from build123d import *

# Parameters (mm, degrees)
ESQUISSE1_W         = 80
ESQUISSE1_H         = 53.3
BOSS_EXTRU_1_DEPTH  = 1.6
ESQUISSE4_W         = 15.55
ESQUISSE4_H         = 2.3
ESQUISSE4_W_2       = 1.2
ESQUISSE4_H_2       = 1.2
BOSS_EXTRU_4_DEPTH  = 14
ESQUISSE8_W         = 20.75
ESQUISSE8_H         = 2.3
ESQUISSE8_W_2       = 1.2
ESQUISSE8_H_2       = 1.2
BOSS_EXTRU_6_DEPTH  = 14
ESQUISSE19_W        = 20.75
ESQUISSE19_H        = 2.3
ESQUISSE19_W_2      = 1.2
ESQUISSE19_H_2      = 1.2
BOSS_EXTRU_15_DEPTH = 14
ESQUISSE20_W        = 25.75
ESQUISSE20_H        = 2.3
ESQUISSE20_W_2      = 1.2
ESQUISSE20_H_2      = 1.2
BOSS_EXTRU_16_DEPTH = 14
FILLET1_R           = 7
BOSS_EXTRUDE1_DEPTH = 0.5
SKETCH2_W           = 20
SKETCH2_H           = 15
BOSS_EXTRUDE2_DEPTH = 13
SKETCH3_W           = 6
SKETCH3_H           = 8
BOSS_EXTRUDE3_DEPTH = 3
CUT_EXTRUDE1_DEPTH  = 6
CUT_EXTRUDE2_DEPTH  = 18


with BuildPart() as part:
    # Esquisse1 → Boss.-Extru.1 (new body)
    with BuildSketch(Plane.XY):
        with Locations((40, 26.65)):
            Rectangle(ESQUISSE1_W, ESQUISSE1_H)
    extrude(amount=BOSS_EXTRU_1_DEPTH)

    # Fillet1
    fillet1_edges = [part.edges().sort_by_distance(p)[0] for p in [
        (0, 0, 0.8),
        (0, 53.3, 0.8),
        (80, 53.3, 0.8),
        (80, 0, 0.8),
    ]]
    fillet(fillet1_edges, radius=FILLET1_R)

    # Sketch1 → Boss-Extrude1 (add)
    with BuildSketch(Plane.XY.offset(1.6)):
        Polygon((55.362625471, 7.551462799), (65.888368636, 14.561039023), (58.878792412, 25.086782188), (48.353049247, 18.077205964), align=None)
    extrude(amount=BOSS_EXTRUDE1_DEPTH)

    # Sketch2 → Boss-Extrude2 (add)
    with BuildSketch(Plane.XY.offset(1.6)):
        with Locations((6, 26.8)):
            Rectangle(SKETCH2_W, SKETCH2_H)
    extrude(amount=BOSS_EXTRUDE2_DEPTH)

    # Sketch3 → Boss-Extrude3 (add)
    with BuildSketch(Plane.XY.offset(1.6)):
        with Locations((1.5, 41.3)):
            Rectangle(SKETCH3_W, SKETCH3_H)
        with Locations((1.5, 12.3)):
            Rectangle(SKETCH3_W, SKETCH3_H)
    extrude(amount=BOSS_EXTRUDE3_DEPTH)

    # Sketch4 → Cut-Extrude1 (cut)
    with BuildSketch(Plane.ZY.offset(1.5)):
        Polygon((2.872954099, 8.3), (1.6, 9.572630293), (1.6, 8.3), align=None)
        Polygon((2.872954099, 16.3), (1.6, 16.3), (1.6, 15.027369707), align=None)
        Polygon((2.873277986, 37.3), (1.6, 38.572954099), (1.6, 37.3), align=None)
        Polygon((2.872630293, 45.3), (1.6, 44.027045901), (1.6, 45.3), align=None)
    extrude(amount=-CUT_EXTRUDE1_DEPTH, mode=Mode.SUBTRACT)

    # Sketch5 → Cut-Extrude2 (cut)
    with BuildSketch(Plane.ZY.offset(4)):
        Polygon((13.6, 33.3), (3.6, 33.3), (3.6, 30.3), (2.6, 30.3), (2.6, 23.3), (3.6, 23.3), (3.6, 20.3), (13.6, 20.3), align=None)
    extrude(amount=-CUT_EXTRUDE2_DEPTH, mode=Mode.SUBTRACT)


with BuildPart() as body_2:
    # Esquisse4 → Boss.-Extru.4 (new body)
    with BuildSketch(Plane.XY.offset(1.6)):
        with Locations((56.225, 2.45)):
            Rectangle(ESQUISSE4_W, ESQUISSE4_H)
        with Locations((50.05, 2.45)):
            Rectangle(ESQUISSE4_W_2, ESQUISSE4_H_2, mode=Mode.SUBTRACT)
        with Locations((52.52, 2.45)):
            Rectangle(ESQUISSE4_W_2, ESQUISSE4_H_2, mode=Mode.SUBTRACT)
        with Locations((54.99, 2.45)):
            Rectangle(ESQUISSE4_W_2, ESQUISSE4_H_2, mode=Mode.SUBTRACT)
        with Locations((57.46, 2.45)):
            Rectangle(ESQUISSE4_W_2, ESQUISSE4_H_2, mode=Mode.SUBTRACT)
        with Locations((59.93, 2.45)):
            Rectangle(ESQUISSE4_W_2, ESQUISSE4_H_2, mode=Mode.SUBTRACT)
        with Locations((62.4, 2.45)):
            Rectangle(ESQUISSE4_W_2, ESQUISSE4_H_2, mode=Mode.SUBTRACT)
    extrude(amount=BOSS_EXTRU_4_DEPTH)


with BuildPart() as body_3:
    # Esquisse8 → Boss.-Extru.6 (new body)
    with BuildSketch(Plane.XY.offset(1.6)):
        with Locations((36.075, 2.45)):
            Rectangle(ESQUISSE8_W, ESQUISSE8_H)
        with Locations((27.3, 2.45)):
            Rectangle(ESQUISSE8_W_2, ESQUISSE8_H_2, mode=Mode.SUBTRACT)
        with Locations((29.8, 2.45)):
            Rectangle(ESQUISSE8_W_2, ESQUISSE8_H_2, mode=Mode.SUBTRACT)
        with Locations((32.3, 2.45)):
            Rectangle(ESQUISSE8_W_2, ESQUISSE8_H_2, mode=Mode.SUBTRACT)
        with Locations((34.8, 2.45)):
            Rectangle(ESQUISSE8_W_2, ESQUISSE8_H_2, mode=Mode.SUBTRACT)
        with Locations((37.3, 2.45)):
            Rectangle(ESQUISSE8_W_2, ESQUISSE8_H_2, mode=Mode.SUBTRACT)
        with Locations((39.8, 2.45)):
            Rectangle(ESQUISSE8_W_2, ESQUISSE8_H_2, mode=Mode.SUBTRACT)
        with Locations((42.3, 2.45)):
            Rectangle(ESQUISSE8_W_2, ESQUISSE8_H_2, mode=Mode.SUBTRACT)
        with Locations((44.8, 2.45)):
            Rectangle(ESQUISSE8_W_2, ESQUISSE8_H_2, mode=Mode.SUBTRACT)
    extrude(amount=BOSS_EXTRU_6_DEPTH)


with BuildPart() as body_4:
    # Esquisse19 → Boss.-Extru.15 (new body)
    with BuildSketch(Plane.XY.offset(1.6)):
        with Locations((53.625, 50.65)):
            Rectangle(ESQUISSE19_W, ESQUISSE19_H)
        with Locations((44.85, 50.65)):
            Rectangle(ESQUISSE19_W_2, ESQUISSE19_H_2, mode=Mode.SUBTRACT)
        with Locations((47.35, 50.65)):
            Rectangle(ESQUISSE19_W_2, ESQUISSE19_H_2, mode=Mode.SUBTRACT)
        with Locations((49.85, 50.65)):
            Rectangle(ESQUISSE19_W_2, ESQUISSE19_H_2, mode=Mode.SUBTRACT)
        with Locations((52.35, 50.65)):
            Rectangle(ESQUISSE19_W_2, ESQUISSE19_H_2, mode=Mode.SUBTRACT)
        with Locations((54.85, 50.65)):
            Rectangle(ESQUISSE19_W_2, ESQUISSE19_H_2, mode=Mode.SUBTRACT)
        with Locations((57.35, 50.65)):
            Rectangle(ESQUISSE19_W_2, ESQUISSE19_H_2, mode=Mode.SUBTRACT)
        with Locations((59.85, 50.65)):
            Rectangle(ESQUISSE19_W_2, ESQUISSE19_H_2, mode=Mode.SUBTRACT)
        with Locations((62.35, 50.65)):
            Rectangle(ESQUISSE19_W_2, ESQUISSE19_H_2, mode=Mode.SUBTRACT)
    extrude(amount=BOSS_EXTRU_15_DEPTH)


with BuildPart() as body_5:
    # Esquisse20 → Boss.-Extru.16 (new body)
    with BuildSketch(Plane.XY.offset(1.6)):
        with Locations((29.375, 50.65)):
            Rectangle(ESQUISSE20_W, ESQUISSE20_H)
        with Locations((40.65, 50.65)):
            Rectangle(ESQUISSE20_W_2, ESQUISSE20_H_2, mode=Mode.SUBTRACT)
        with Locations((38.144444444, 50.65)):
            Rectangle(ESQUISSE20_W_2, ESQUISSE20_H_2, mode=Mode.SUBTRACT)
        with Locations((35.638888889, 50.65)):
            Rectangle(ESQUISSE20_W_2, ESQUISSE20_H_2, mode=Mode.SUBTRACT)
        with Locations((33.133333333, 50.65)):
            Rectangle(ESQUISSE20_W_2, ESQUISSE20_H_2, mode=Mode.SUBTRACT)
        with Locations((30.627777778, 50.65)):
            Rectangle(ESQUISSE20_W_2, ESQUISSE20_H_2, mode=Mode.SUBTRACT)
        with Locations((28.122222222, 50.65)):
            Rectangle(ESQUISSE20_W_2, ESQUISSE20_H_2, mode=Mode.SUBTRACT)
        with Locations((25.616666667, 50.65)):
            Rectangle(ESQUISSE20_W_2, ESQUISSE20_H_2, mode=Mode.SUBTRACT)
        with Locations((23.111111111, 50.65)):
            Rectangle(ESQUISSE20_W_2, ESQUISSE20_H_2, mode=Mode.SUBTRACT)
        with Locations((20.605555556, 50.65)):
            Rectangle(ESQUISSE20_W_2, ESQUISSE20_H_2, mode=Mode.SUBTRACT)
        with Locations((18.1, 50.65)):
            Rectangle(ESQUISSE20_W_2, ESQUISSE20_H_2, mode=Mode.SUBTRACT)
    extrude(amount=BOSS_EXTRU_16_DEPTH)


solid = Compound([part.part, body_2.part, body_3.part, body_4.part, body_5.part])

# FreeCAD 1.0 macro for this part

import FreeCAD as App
import Part
import Sketcher
from FreeCAD import Vector
Q = App.Units.Quantity


def edges_at(feature, points):
    """Names of the edges that pass closest to the given points."""
    edges = feature.Shape.Edges
    near = lambda p: min(range(len(edges)), key=lambda i: edges[i].distToShape(Part.Vertex(*p))[0])
    return sorted({f"Edge{near(p) + 1}" for p in points})


def add_polygon(sketch, points):
    """Adds a closed chain of lines whose ends are joined by coincident constraints."""
    first, n = sketch.GeometryCount, len(points)
    for a, b in zip(points, points[1:] + points[:1]):
        sketch.addGeometry(Part.LineSegment(App.Vector(*a, 0), App.Vector(*b, 0)), False)
    for i in range(n):
        sketch.addConstraint(Sketcher.Constraint("Coincident", first + i, 2, first + (i + 1) % n, 1))

doc = App.newDocument("Part")
body = doc.addObject("PartDesign::Body", "Body")

# Sketch on XY plane
sketch1 = doc.addObject("Sketcher::SketchObject", "Sketch")
body.addObject(sketch1)
sketch1.AttachmentSupport = (doc.XY_Plane, [""])
sketch1.MapMode = "FlatFace"
add_polygon(sketch1, [(0, 53.3), (0, 0), (80, 0), (80, 53.3)])  # lines 0-3
sketch1.addConstraint(Sketcher.Constraint("Vertical", 0))
sketch1.addConstraint(Sketcher.Constraint("Horizontal", 1))
sketch1.addConstraint(Sketcher.Constraint("Vertical", 2))
sketch1.addConstraint(Sketcher.Constraint("Horizontal", 3))
sketch1.addConstraint(Sketcher.Constraint("Coincident", 0, 2, -1, 1))
sketch1.addConstraint(Sketcher.Constraint("DistanceX", 1, 1, 1, 2, Q("80 mm")))
sketch1.addConstraint(Sketcher.Constraint("DistanceY", 0, 2, 0, 1, Q("53.3 mm")))
pad1 = doc.addObject("PartDesign::Pad", "Pad")
body.addObject(pad1)
pad1.Profile = sketch1
pad1.Length = 1.6
doc.recompute()

fillet = doc.addObject("PartDesign::Fillet", "Fillet")
body.addObject(fillet)
fillet.Base = (pad1, edges_at(pad1, [
    (0, 0, 0.8),
    (0, 53.3, 0.8),
    (80, 53.3, 0.8),
    (80, 0, 0.8),
]))
fillet.Radius = 7

# Sketch on XY plane
sketch2 = doc.addObject("Sketcher::SketchObject", "Sketch001")
body.addObject(sketch2)
sketch2.AttachmentSupport = (doc.XY_Plane, [""])
sketch2.MapMode = "FlatFace"
sketch2.AttachmentOffset = App.Placement(Vector(0, 0, 1.6), App.Rotation())
add_polygon(sketch2, [(55.362625, 7.551463), (65.888369, 14.561039), (58.878792, 25.086782), (48.353049, 18.077206)])  # lines 0-3
sketch2.addConstraint(Sketcher.Constraint("Perpendicular", 0, 1))
sketch2.addConstraint(Sketcher.Constraint("Perpendicular", 1, 2))
sketch2.addConstraint(Sketcher.Constraint("Perpendicular", 2, 3))
sketch2.addConstraint(Sketcher.Constraint("Equal", 0, 1))
sketch2.addConstraint(Sketcher.Constraint("DistanceX", -1, 1, 0, 2, Q("65.888369 mm")))
sketch2.addConstraint(Sketcher.Constraint("DistanceY", -1, 1, 0, 2, Q("14.561039 mm")))
sketch2.addConstraint(Sketcher.Constraint("DistanceX", -1, 1, 2, 2, Q("48.353049 mm")))
sketch2.addConstraint(Sketcher.Constraint("Distance", 0, Q("12.646163 mm")))
pad2 = doc.addObject("PartDesign::Pad", "Pad001")
body.addObject(pad2)
pad2.Profile = sketch2
pad2.Length = 0.5

# Sketch on XY plane
sketch3 = doc.addObject("Sketcher::SketchObject", "Sketch002")
body.addObject(sketch3)
sketch3.AttachmentSupport = (doc.XY_Plane, [""])
sketch3.MapMode = "FlatFace"
sketch3.AttachmentOffset = App.Placement(Vector(0, 0, 1.6), App.Rotation())
add_polygon(sketch3, [(-4, 34.3), (-4, 19.3), (16, 19.3), (16, 34.3)])  # lines 0-3
sketch3.addConstraint(Sketcher.Constraint("Vertical", 0))
sketch3.addConstraint(Sketcher.Constraint("Horizontal", 1))
sketch3.addConstraint(Sketcher.Constraint("Vertical", 2))
sketch3.addConstraint(Sketcher.Constraint("Horizontal", 3))
sketch3.addConstraint(Sketcher.Constraint("DistanceX", 1, 1, 1, 2, Q("20 mm")))
sketch3.addConstraint(Sketcher.Constraint("DistanceY", 0, 2, 0, 1, Q("15 mm")))
sketch3.addConstraint(Sketcher.Constraint("DistanceX", 0, 2, -1, 1, Q("4 mm")))
sketch3.addConstraint(Sketcher.Constraint("DistanceY", -1, 1, 0, 2, Q("19.3 mm")))
pad3 = doc.addObject("PartDesign::Pad", "Pad002")
body.addObject(pad3)
pad3.Profile = sketch3
pad3.Length = 13

# Sketch on XY plane
sketch4 = doc.addObject("Sketcher::SketchObject", "Sketch003")
body.addObject(sketch4)
sketch4.AttachmentSupport = (doc.XY_Plane, [""])
sketch4.MapMode = "FlatFace"
sketch4.AttachmentOffset = App.Placement(Vector(0, 0, 1.6), App.Rotation())
add_polygon(sketch4, [(-1.5, 45.3), (-1.5, 37.3), (4.5, 37.3), (4.5, 45.3)])  # lines 0-3
add_polygon(sketch4, [(-1.5, 16.3), (-1.5, 8.3), (4.5, 8.3), (4.5, 16.3)])  # lines 4-7
sketch4.addConstraint(Sketcher.Constraint("Vertical", 0))
sketch4.addConstraint(Sketcher.Constraint("Horizontal", 1))
sketch4.addConstraint(Sketcher.Constraint("Vertical", 2))
sketch4.addConstraint(Sketcher.Constraint("Horizontal", 3))
sketch4.addConstraint(Sketcher.Constraint("Vertical", 4))
sketch4.addConstraint(Sketcher.Constraint("Horizontal", 5))
sketch4.addConstraint(Sketcher.Constraint("Vertical", 6))
sketch4.addConstraint(Sketcher.Constraint("Horizontal", 7))
sketch4.addConstraint(Sketcher.Constraint("Vertical", 3, 2, 4, 2))
sketch4.addConstraint(Sketcher.Constraint("Vertical", 2, 2, 5, 2))
sketch4.addConstraint(Sketcher.Constraint("Equal", 2, 4))
sketch4.addConstraint(Sketcher.Constraint("DistanceX", 1, 1, 1, 2, Q("6 mm")))
sketch4.addConstraint(Sketcher.Constraint("DistanceY", 0, 2, 0, 1, Q("8 mm")))
sketch4.addConstraint(Sketcher.Constraint("DistanceY", 4, 2, 0, 2, Q("29 mm")))
sketch4.addConstraint(Sketcher.Constraint("DistanceX", 0, 2, -1, 1, Q("1.5 mm")))
sketch4.addConstraint(Sketcher.Constraint("DistanceY", -1, 1, 0, 2, Q("37.3 mm")))
pad4 = doc.addObject("PartDesign::Pad", "Pad003")
body.addObject(pad4)
pad4.Profile = sketch4
pad4.Length = 3

# Sketch on YZ plane
sketch5 = doc.addObject("Sketcher::SketchObject", "Sketch004")
body.addObject(sketch5)
sketch5.AttachmentSupport = (doc.YZ_Plane, [""])
sketch5.MapMode = "FlatFace"
sketch5.AttachmentOffset = App.Placement(Vector(0, 0, -1.5), App.Rotation())
add_polygon(sketch5, [(8.3, 2.872954), (9.57263, 1.6), (8.3, 1.6)])  # lines 0-2
add_polygon(sketch5, [(16.3, 2.872954), (16.3, 1.6), (15.02737, 1.6)])  # lines 3-5
add_polygon(sketch5, [(37.3, 2.873278), (38.572954, 1.6), (37.3, 1.6)])  # lines 6-8
add_polygon(sketch5, [(44.027046, 1.6), (45.3, 2.87263), (45.3, 1.6)])  # lines 9-11
sketch5.addConstraint(Sketcher.Constraint("Horizontal", 1))
sketch5.addConstraint(Sketcher.Constraint("Vertical", 2))
sketch5.addConstraint(Sketcher.Constraint("Vertical", 3))
sketch5.addConstraint(Sketcher.Constraint("Horizontal", 4))
sketch5.addConstraint(Sketcher.Constraint("Horizontal", 7))
sketch5.addConstraint(Sketcher.Constraint("Vertical", 8))
sketch5.addConstraint(Sketcher.Constraint("Vertical", 10))
sketch5.addConstraint(Sketcher.Constraint("Horizontal", 11))
sketch5.addConstraint(Sketcher.Constraint("Parallel", 0, 6))
sketch5.addConstraint(Sketcher.Constraint("Perpendicular", 6, 9))
sketch5.addConstraint(Sketcher.Constraint("Horizontal", 1, 2, 3, 2))
sketch5.addConstraint(Sketcher.Constraint("Horizontal", 2, 2, 5, 2))
sketch5.addConstraint(Sketcher.Constraint("Horizontal", 4, 2, 6, 2))
sketch5.addConstraint(Sketcher.Constraint("Horizontal", 7, 2, 10, 2))
sketch5.addConstraint(Sketcher.Constraint("Equal", 1, 4))
sketch5.addConstraint(Sketcher.Constraint("Equal", 7, 11))
sketch5.addConstraint(Sketcher.Constraint("Equal", 11, 2))
sketch5.addConstraint(Sketcher.Constraint("DistanceX", 1, 2, 3, 2, Q("8 mm")))
sketch5.addConstraint(Sketcher.Constraint("DistanceX", 3, 2, 7, 2, Q("21 mm")))
sketch5.addConstraint(Sketcher.Constraint("DistanceX", 8, 2, 9, 2, Q("8 mm")))
sketch5.addConstraint(Sketcher.Constraint("Distance", 0, Q("1.8 mm")))
sketch5.addConstraint(Sketcher.Constraint("DistanceY", -1, 1, 0, 2, Q("1.6 mm")))
sketch5.addConstraint(Sketcher.Constraint("DistanceX", -1, 1, 1, 2, Q("8.3 mm")))
sketch5.addConstraint(Sketcher.Constraint("DistanceX", 1, 2, 1, 1, Q("1.27263 mm")))
pocket1 = doc.addObject("PartDesign::Pocket", "Pocket")
body.addObject(pocket1)
pocket1.Profile = sketch5
pocket1.Length = 6
pocket1.Reversed = True

# Sketch on YZ plane
sketch6 = doc.addObject("Sketcher::SketchObject", "Sketch005")
body.addObject(sketch6)
sketch6.AttachmentSupport = (doc.YZ_Plane, [""])
sketch6.MapMode = "FlatFace"
sketch6.AttachmentOffset = App.Placement(Vector(0, 0, -4), App.Rotation())
add_polygon(sketch6, [(33.3, 13.6), (33.3, 3.6), (30.3, 3.6), (30.3, 2.6), (23.3, 2.6), (23.3, 3.6), (20.3, 3.6), (20.3, 13.6)])  # lines 0-7
sketch6.addConstraint(Sketcher.Constraint("Vertical", 0))
sketch6.addConstraint(Sketcher.Constraint("Horizontal", 1))
sketch6.addConstraint(Sketcher.Constraint("Vertical", 2))
sketch6.addConstraint(Sketcher.Constraint("Horizontal", 3))
sketch6.addConstraint(Sketcher.Constraint("Vertical", 4))
sketch6.addConstraint(Sketcher.Constraint("Horizontal", 5))
sketch6.addConstraint(Sketcher.Constraint("Vertical", 6))
sketch6.addConstraint(Sketcher.Constraint("Horizontal", 7))
sketch6.addConstraint(Sketcher.Constraint("Horizontal", 1, 2, 4, 2))
sketch6.addConstraint(Sketcher.Constraint("Equal", 1, 5))
sketch6.addConstraint(Sketcher.Constraint("DistanceX", 1, 2, 1, 1, Q("3 mm")))
sketch6.addConstraint(Sketcher.Constraint("DistanceX", 3, 2, 3, 1, Q("7 mm")))
sketch6.addConstraint(Sketcher.Constraint("DistanceY", 0, 2, 0, 1, Q("10 mm")))
sketch6.addConstraint(Sketcher.Constraint("DistanceY", 2, 2, 2, 1, Q("1 mm")))
sketch6.addConstraint(Sketcher.Constraint("DistanceX", -1, 1, 0, 2, Q("33.3 mm")))
sketch6.addConstraint(Sketcher.Constraint("DistanceY", -1, 1, 0, 2, Q("3.6 mm")))
pocket2 = doc.addObject("PartDesign::Pocket", "Pocket001")
body.addObject(pocket2)
pocket2.Profile = sketch6
pocket2.Length = 18
pocket2.Reversed = True
body2 = doc.addObject("PartDesign::Body", "Body001")

# Sketch on XY plane
sketch7 = doc.addObject("Sketcher::SketchObject", "Sketch006")
body2.addObject(sketch7)
sketch7.AttachmentSupport = (doc.getObject("XY_Plane001"), [""])
sketch7.MapMode = "FlatFace"
sketch7.AttachmentOffset = App.Placement(Vector(0, 0, 1.6), App.Rotation())
add_polygon(sketch7, [(48.45, 3.6), (48.45, 1.3), (64, 1.3), (64, 3.6)])  # lines 0-3
add_polygon(sketch7, [(50.65, 1.85), (49.45, 1.85), (49.45, 3.05), (50.65, 3.05)])  # lines 4-7
add_polygon(sketch7, [(53.12, 1.85), (51.92, 1.85), (51.92, 3.05), (53.12, 3.05)])  # lines 8-11
add_polygon(sketch7, [(55.59, 1.85), (54.39, 1.85), (54.39, 3.05), (55.59, 3.05)])  # lines 12-15
add_polygon(sketch7, [(58.06, 1.85), (56.86, 1.85), (56.86, 3.05), (58.06, 3.05)])  # lines 16-19
add_polygon(sketch7, [(60.53, 1.85), (59.33, 1.85), (59.33, 3.05), (60.53, 3.05)])  # lines 20-23
add_polygon(sketch7, [(63, 1.85), (61.8, 1.85), (61.8, 3.05), (63, 3.05)])  # lines 24-27
sketch7.addConstraint(Sketcher.Constraint("Vertical", 0))
sketch7.addConstraint(Sketcher.Constraint("Horizontal", 1))
sketch7.addConstraint(Sketcher.Constraint("Vertical", 2))
sketch7.addConstraint(Sketcher.Constraint("Horizontal", 3))
sketch7.addConstraint(Sketcher.Constraint("Horizontal", 4))
sketch7.addConstraint(Sketcher.Constraint("Vertical", 5))
sketch7.addConstraint(Sketcher.Constraint("Horizontal", 6))
sketch7.addConstraint(Sketcher.Constraint("Vertical", 7))
sketch7.addConstraint(Sketcher.Constraint("Horizontal", 8))
sketch7.addConstraint(Sketcher.Constraint("Vertical", 9))
sketch7.addConstraint(Sketcher.Constraint("Horizontal", 10))
sketch7.addConstraint(Sketcher.Constraint("Vertical", 11))
sketch7.addConstraint(Sketcher.Constraint("Horizontal", 12))
sketch7.addConstraint(Sketcher.Constraint("Vertical", 13))
sketch7.addConstraint(Sketcher.Constraint("Horizontal", 14))
sketch7.addConstraint(Sketcher.Constraint("Vertical", 15))
sketch7.addConstraint(Sketcher.Constraint("Horizontal", 16))
sketch7.addConstraint(Sketcher.Constraint("Vertical", 17))
sketch7.addConstraint(Sketcher.Constraint("Horizontal", 18))
sketch7.addConstraint(Sketcher.Constraint("Vertical", 19))
sketch7.addConstraint(Sketcher.Constraint("Horizontal", 20))
sketch7.addConstraint(Sketcher.Constraint("Vertical", 21))
sketch7.addConstraint(Sketcher.Constraint("Horizontal", 22))
sketch7.addConstraint(Sketcher.Constraint("Vertical", 23))
sketch7.addConstraint(Sketcher.Constraint("Horizontal", 24))
sketch7.addConstraint(Sketcher.Constraint("Vertical", 25))
sketch7.addConstraint(Sketcher.Constraint("Horizontal", 26))
sketch7.addConstraint(Sketcher.Constraint("Vertical", 27))
sketch7.addConstraint(Sketcher.Constraint("Horizontal", 7, 2, 8, 2))
sketch7.addConstraint(Sketcher.Constraint("Horizontal", 6, 2, 9, 2))
sketch7.addConstraint(Sketcher.Constraint("Horizontal", 11, 2, 12, 2))
sketch7.addConstraint(Sketcher.Constraint("Horizontal", 10, 2, 13, 2))
sketch7.addConstraint(Sketcher.Constraint("Horizontal", 15, 2, 16, 2))
sketch7.addConstraint(Sketcher.Constraint("Horizontal", 14, 2, 17, 2))
sketch7.addConstraint(Sketcher.Constraint("Horizontal", 19, 2, 20, 2))
sketch7.addConstraint(Sketcher.Constraint("Horizontal", 18, 2, 21, 2))
sketch7.addConstraint(Sketcher.Constraint("Horizontal", 23, 2, 24, 2))
sketch7.addConstraint(Sketcher.Constraint("Horizontal", 22, 2, 25, 2))
sketch7.addConstraint(Sketcher.Constraint("Equal", 6, 8))
sketch7.addConstraint(Sketcher.Constraint("Equal", 10, 12))
sketch7.addConstraint(Sketcher.Constraint("Equal", 14, 16))
sketch7.addConstraint(Sketcher.Constraint("Equal", 18, 20))
sketch7.addConstraint(Sketcher.Constraint("Equal", 22, 24))
sketch7.addConstraint(Sketcher.Constraint("Equal", 26, 5))
sketch7.addConstraint(Sketcher.Constraint("DistanceX", 4, 2, 4, 1, Q("1.2 mm")))
sketch7.addConstraint(Sketcher.Constraint("DistanceY", 0, 2, 0, 1, Q("2.3 mm")))
sketch7.addConstraint(Sketcher.Constraint("DistanceX", -1, 1, 1, 2, Q("64 mm")))
sketch7.addConstraint(Sketcher.Constraint("DistanceX", -1, 1, 26, 2, Q("63 mm")))
sketch7.addConstraint(Sketcher.Constraint("DistanceX", 0, 2, 4, 2, Q("1 mm")))
sketch7.addConstraint(Sketcher.Constraint("DistanceX", 1, 1, 1, 2, Q("15.55 mm")))
sketch7.addConstraint(Sketcher.Constraint("DistanceY", -1, 1, 0, 2, Q("1.3 mm")))
sketch7.addConstraint(Sketcher.Constraint("DistanceY", -1, 1, 4, 2, Q("1.85 mm")))
sketch7.addConstraint(Sketcher.Constraint("DistanceX", -1, 1, 8, 2, Q("51.92 mm")))
sketch7.addConstraint(Sketcher.Constraint("DistanceX", -1, 1, 12, 2, Q("54.39 mm")))
sketch7.addConstraint(Sketcher.Constraint("DistanceX", -1, 1, 16, 2, Q("56.86 mm")))
sketch7.addConstraint(Sketcher.Constraint("DistanceX", -1, 1, 20, 2, Q("59.33 mm")))
pad5 = doc.addObject("PartDesign::Pad", "Pad004")
body2.addObject(pad5)
pad5.Profile = sketch7
pad5.Length = 14
body3 = doc.addObject("PartDesign::Body", "Body002")

# Sketch on XY plane
sketch8 = doc.addObject("Sketcher::SketchObject", "Sketch007")
body3.addObject(sketch8)
sketch8.AttachmentSupport = (doc.getObject("XY_Plane002"), [""])
sketch8.MapMode = "FlatFace"
sketch8.AttachmentOffset = App.Placement(Vector(0, 0, 1.6), App.Rotation())
add_polygon(sketch8, [(25.7, 3.6), (25.7, 1.3), (46.45, 1.3), (46.45, 3.6)])  # lines 0-3
add_polygon(sketch8, [(27.9, 1.85), (26.7, 1.85), (26.7, 3.05), (27.9, 3.05)])  # lines 4-7
add_polygon(sketch8, [(30.4, 1.85), (29.2, 1.85), (29.2, 3.05), (30.4, 3.05)])  # lines 8-11
add_polygon(sketch8, [(32.9, 1.85), (31.7, 1.85), (31.7, 3.05), (32.9, 3.05)])  # lines 12-15
add_polygon(sketch8, [(35.4, 1.85), (34.2, 1.85), (34.2, 3.05), (35.4, 3.05)])  # lines 16-19
add_polygon(sketch8, [(37.9, 1.85), (36.7, 1.85), (36.7, 3.05), (37.9, 3.05)])  # lines 20-23
add_polygon(sketch8, [(40.4, 1.85), (39.2, 1.85), (39.2, 3.05), (40.4, 3.05)])  # lines 24-27
add_polygon(sketch8, [(42.9, 1.85), (41.7, 1.85), (41.7, 3.05), (42.9, 3.05)])  # lines 28-31
add_polygon(sketch8, [(45.4, 1.85), (44.2, 1.85), (44.2, 3.05), (45.4, 3.05)])  # lines 32-35
sketch8.addConstraint(Sketcher.Constraint("Vertical", 0))
sketch8.addConstraint(Sketcher.Constraint("Horizontal", 1))
sketch8.addConstraint(Sketcher.Constraint("Vertical", 2))
sketch8.addConstraint(Sketcher.Constraint("Horizontal", 3))
sketch8.addConstraint(Sketcher.Constraint("Horizontal", 4))
sketch8.addConstraint(Sketcher.Constraint("Vertical", 5))
sketch8.addConstraint(Sketcher.Constraint("Horizontal", 6))
sketch8.addConstraint(Sketcher.Constraint("Vertical", 7))
sketch8.addConstraint(Sketcher.Constraint("Horizontal", 8))
sketch8.addConstraint(Sketcher.Constraint("Vertical", 9))
sketch8.addConstraint(Sketcher.Constraint("Horizontal", 10))
sketch8.addConstraint(Sketcher.Constraint("Vertical", 11))
sketch8.addConstraint(Sketcher.Constraint("Horizontal", 12))
sketch8.addConstraint(Sketcher.Constraint("Vertical", 13))
sketch8.addConstraint(Sketcher.Constraint("Horizontal", 14))
sketch8.addConstraint(Sketcher.Constraint("Vertical", 15))
sketch8.addConstraint(Sketcher.Constraint("Horizontal", 16))
sketch8.addConstraint(Sketcher.Constraint("Vertical", 17))
sketch8.addConstraint(Sketcher.Constraint("Horizontal", 18))
sketch8.addConstraint(Sketcher.Constraint("Vertical", 19))
sketch8.addConstraint(Sketcher.Constraint("Horizontal", 20))
sketch8.addConstraint(Sketcher.Constraint("Vertical", 21))
sketch8.addConstraint(Sketcher.Constraint("Horizontal", 22))
sketch8.addConstraint(Sketcher.Constraint("Vertical", 23))
sketch8.addConstraint(Sketcher.Constraint("Horizontal", 24))
sketch8.addConstraint(Sketcher.Constraint("Vertical", 25))
sketch8.addConstraint(Sketcher.Constraint("Horizontal", 26))
sketch8.addConstraint(Sketcher.Constraint("Vertical", 27))
sketch8.addConstraint(Sketcher.Constraint("Horizontal", 28))
sketch8.addConstraint(Sketcher.Constraint("Vertical", 29))
sketch8.addConstraint(Sketcher.Constraint("Horizontal", 30))
sketch8.addConstraint(Sketcher.Constraint("Vertical", 31))
sketch8.addConstraint(Sketcher.Constraint("Horizontal", 32))
sketch8.addConstraint(Sketcher.Constraint("Vertical", 33))
sketch8.addConstraint(Sketcher.Constraint("Horizontal", 34))
sketch8.addConstraint(Sketcher.Constraint("Vertical", 35))
sketch8.addConstraint(Sketcher.Constraint("Horizontal", 7, 2, 8, 2))
sketch8.addConstraint(Sketcher.Constraint("Horizontal", 6, 2, 9, 2))
sketch8.addConstraint(Sketcher.Constraint("Horizontal", 11, 2, 12, 2))
sketch8.addConstraint(Sketcher.Constraint("Horizontal", 10, 2, 13, 2))
sketch8.addConstraint(Sketcher.Constraint("Horizontal", 15, 2, 16, 2))
sketch8.addConstraint(Sketcher.Constraint("Horizontal", 14, 2, 17, 2))
sketch8.addConstraint(Sketcher.Constraint("Horizontal", 19, 2, 20, 2))
sketch8.addConstraint(Sketcher.Constraint("Horizontal", 18, 2, 21, 2))
sketch8.addConstraint(Sketcher.Constraint("Horizontal", 23, 2, 24, 2))
sketch8.addConstraint(Sketcher.Constraint("Horizontal", 22, 2, 25, 2))
sketch8.addConstraint(Sketcher.Constraint("Horizontal", 27, 2, 28, 2))
sketch8.addConstraint(Sketcher.Constraint("Horizontal", 26, 2, 29, 2))
sketch8.addConstraint(Sketcher.Constraint("Horizontal", 31, 2, 32, 2))
sketch8.addConstraint(Sketcher.Constraint("Horizontal", 30, 2, 33, 2))
sketch8.addConstraint(Sketcher.Constraint("Equal", 6, 8))
sketch8.addConstraint(Sketcher.Constraint("Equal", 10, 12))
sketch8.addConstraint(Sketcher.Constraint("Equal", 14, 16))
sketch8.addConstraint(Sketcher.Constraint("Equal", 18, 20))
sketch8.addConstraint(Sketcher.Constraint("Equal", 22, 24))
sketch8.addConstraint(Sketcher.Constraint("Equal", 26, 28))
sketch8.addConstraint(Sketcher.Constraint("Equal", 30, 32))
sketch8.addConstraint(Sketcher.Constraint("Equal", 34, 5))
sketch8.addConstraint(Sketcher.Constraint("DistanceX", 4, 2, 4, 1, Q("1.2 mm")))
sketch8.addConstraint(Sketcher.Constraint("DistanceY", 0, 2, 0, 1, Q("2.3 mm")))
sketch8.addConstraint(Sketcher.Constraint("DistanceX", 0, 2, 4, 2, Q("1 mm")))
sketch8.addConstraint(Sketcher.Constraint("DistanceX", 1, 1, 1, 2, Q("20.75 mm")))
sketch8.addConstraint(Sketcher.Constraint("DistanceX", -1, 1, 0, 2, Q("25.7 mm")))
sketch8.addConstraint(Sketcher.Constraint("DistanceY", -1, 1, 0, 2, Q("1.3 mm")))
sketch8.addConstraint(Sketcher.Constraint("DistanceX", -1, 1, 8, 2, Q("29.2 mm")))
sketch8.addConstraint(Sketcher.Constraint("DistanceX", -1, 1, 12, 2, Q("31.7 mm")))
sketch8.addConstraint(Sketcher.Constraint("DistanceX", -1, 1, 16, 2, Q("34.2 mm")))
sketch8.addConstraint(Sketcher.Constraint("DistanceX", -1, 1, 20, 2, Q("36.7 mm")))
sketch8.addConstraint(Sketcher.Constraint("DistanceX", -1, 1, 24, 2, Q("39.2 mm")))
sketch8.addConstraint(Sketcher.Constraint("DistanceX", -1, 1, 28, 2, Q("41.7 mm")))
sketch8.addConstraint(Sketcher.Constraint("DistanceX", -1, 1, 32, 2, Q("44.2 mm")))
sketch8.addConstraint(Sketcher.Constraint("DistanceY", -1, 1, 4, 2, Q("1.85 mm")))
pad6 = doc.addObject("PartDesign::Pad", "Pad005")
body3.addObject(pad6)
pad6.Profile = sketch8
pad6.Length = 14
body4 = doc.addObject("PartDesign::Body", "Body003")

# Sketch on XY plane
sketch9 = doc.addObject("Sketcher::SketchObject", "Sketch008")
body4.addObject(sketch9)
sketch9.AttachmentSupport = (doc.getObject("XY_Plane003"), [""])
sketch9.MapMode = "FlatFace"
sketch9.AttachmentOffset = App.Placement(Vector(0, 0, 1.6), App.Rotation())
add_polygon(sketch9, [(43.25, 51.8), (43.25, 49.5), (64, 49.5), (64, 51.8)])  # lines 0-3
add_polygon(sketch9, [(45.45, 50.05), (44.25, 50.05), (44.25, 51.25), (45.45, 51.25)])  # lines 4-7
add_polygon(sketch9, [(47.95, 50.05), (46.75, 50.05), (46.75, 51.25), (47.95, 51.25)])  # lines 8-11
add_polygon(sketch9, [(50.45, 50.05), (49.25, 50.05), (49.25, 51.25), (50.45, 51.25)])  # lines 12-15
add_polygon(sketch9, [(52.95, 50.05), (51.75, 50.05), (51.75, 51.25), (52.95, 51.25)])  # lines 16-19
add_polygon(sketch9, [(55.45, 50.05), (54.25, 50.05), (54.25, 51.25), (55.45, 51.25)])  # lines 20-23
add_polygon(sketch9, [(57.95, 50.05), (56.75, 50.05), (56.75, 51.25), (57.95, 51.25)])  # lines 24-27
add_polygon(sketch9, [(60.45, 50.05), (59.25, 50.05), (59.25, 51.25), (60.45, 51.25)])  # lines 28-31
add_polygon(sketch9, [(62.95, 50.05), (61.75, 50.05), (61.75, 51.25), (62.95, 51.25)])  # lines 32-35
sketch9.addConstraint(Sketcher.Constraint("Vertical", 0))
sketch9.addConstraint(Sketcher.Constraint("Horizontal", 1))
sketch9.addConstraint(Sketcher.Constraint("Vertical", 2))
sketch9.addConstraint(Sketcher.Constraint("Horizontal", 3))
sketch9.addConstraint(Sketcher.Constraint("Horizontal", 4))
sketch9.addConstraint(Sketcher.Constraint("Vertical", 5))
sketch9.addConstraint(Sketcher.Constraint("Horizontal", 6))
sketch9.addConstraint(Sketcher.Constraint("Vertical", 7))
sketch9.addConstraint(Sketcher.Constraint("Horizontal", 8))
sketch9.addConstraint(Sketcher.Constraint("Vertical", 9))
sketch9.addConstraint(Sketcher.Constraint("Horizontal", 10))
sketch9.addConstraint(Sketcher.Constraint("Vertical", 11))
sketch9.addConstraint(Sketcher.Constraint("Horizontal", 12))
sketch9.addConstraint(Sketcher.Constraint("Vertical", 13))
sketch9.addConstraint(Sketcher.Constraint("Horizontal", 14))
sketch9.addConstraint(Sketcher.Constraint("Vertical", 15))
sketch9.addConstraint(Sketcher.Constraint("Horizontal", 16))
sketch9.addConstraint(Sketcher.Constraint("Vertical", 17))
sketch9.addConstraint(Sketcher.Constraint("Horizontal", 18))
sketch9.addConstraint(Sketcher.Constraint("Vertical", 19))
sketch9.addConstraint(Sketcher.Constraint("Horizontal", 20))
sketch9.addConstraint(Sketcher.Constraint("Vertical", 21))
sketch9.addConstraint(Sketcher.Constraint("Horizontal", 22))
sketch9.addConstraint(Sketcher.Constraint("Vertical", 23))
sketch9.addConstraint(Sketcher.Constraint("Horizontal", 24))
sketch9.addConstraint(Sketcher.Constraint("Vertical", 25))
sketch9.addConstraint(Sketcher.Constraint("Horizontal", 26))
sketch9.addConstraint(Sketcher.Constraint("Vertical", 27))
sketch9.addConstraint(Sketcher.Constraint("Horizontal", 28))
sketch9.addConstraint(Sketcher.Constraint("Vertical", 29))
sketch9.addConstraint(Sketcher.Constraint("Horizontal", 30))
sketch9.addConstraint(Sketcher.Constraint("Vertical", 31))
sketch9.addConstraint(Sketcher.Constraint("Horizontal", 32))
sketch9.addConstraint(Sketcher.Constraint("Vertical", 33))
sketch9.addConstraint(Sketcher.Constraint("Horizontal", 34))
sketch9.addConstraint(Sketcher.Constraint("Vertical", 35))
sketch9.addConstraint(Sketcher.Constraint("Horizontal", 7, 2, 8, 2))
sketch9.addConstraint(Sketcher.Constraint("Horizontal", 6, 2, 9, 2))
sketch9.addConstraint(Sketcher.Constraint("Horizontal", 11, 2, 12, 2))
sketch9.addConstraint(Sketcher.Constraint("Horizontal", 10, 2, 13, 2))
sketch9.addConstraint(Sketcher.Constraint("Horizontal", 15, 2, 16, 2))
sketch9.addConstraint(Sketcher.Constraint("Horizontal", 14, 2, 17, 2))
sketch9.addConstraint(Sketcher.Constraint("Horizontal", 19, 2, 20, 2))
sketch9.addConstraint(Sketcher.Constraint("Horizontal", 18, 2, 21, 2))
sketch9.addConstraint(Sketcher.Constraint("Horizontal", 23, 2, 24, 2))
sketch9.addConstraint(Sketcher.Constraint("Horizontal", 22, 2, 25, 2))
sketch9.addConstraint(Sketcher.Constraint("Horizontal", 27, 2, 28, 2))
sketch9.addConstraint(Sketcher.Constraint("Horizontal", 26, 2, 29, 2))
sketch9.addConstraint(Sketcher.Constraint("Horizontal", 31, 2, 32, 2))
sketch9.addConstraint(Sketcher.Constraint("Horizontal", 30, 2, 33, 2))
sketch9.addConstraint(Sketcher.Constraint("Equal", 6, 8))
sketch9.addConstraint(Sketcher.Constraint("Equal", 10, 12))
sketch9.addConstraint(Sketcher.Constraint("Equal", 14, 16))
sketch9.addConstraint(Sketcher.Constraint("Equal", 18, 20))
sketch9.addConstraint(Sketcher.Constraint("Equal", 22, 24))
sketch9.addConstraint(Sketcher.Constraint("Equal", 26, 28))
sketch9.addConstraint(Sketcher.Constraint("Equal", 30, 32))
sketch9.addConstraint(Sketcher.Constraint("Equal", 34, 5))
sketch9.addConstraint(Sketcher.Constraint("DistanceX", 4, 2, 4, 1, Q("1.2 mm")))
sketch9.addConstraint(Sketcher.Constraint("DistanceY", 0, 2, 0, 1, Q("2.3 mm")))
sketch9.addConstraint(Sketcher.Constraint("DistanceX", -1, 1, 1, 2, Q("64 mm")))
sketch9.addConstraint(Sketcher.Constraint("DistanceX", 0, 2, 4, 2, Q("1 mm")))
sketch9.addConstraint(Sketcher.Constraint("DistanceX", 1, 1, 1, 2, Q("20.75 mm")))
sketch9.addConstraint(Sketcher.Constraint("DistanceY", -1, 1, 0, 2, Q("49.5 mm")))
sketch9.addConstraint(Sketcher.Constraint("DistanceX", 7, 2, 8, 2, Q("1.3 mm")))
sketch9.addConstraint(Sketcher.Constraint("DistanceX", 11, 2, 12, 2, Q("1.3 mm")))
sketch9.addConstraint(Sketcher.Constraint("DistanceX", 15, 2, 16, 2, Q("1.3 mm")))
sketch9.addConstraint(Sketcher.Constraint("DistanceX", 19, 2, 20, 2, Q("1.3 mm")))
sketch9.addConstraint(Sketcher.Constraint("DistanceX", 23, 2, 24, 2, Q("1.3 mm")))
sketch9.addConstraint(Sketcher.Constraint("DistanceX", 27, 2, 28, 2, Q("1.3 mm")))
sketch9.addConstraint(Sketcher.Constraint("DistanceX", 31, 2, 32, 2, Q("1.3 mm")))
sketch9.addConstraint(Sketcher.Constraint("DistanceY", -1, 1, 4, 2, Q("50.05 mm")))
pad7 = doc.addObject("PartDesign::Pad", "Pad006")
body4.addObject(pad7)
pad7.Profile = sketch9
pad7.Length = 14
body5 = doc.addObject("PartDesign::Body", "Body004")

# Sketch on XY plane
sketch10 = doc.addObject("Sketcher::SketchObject", "Sketch009")
body5.addObject(sketch10)
sketch10.AttachmentSupport = (doc.getObject("XY_Plane004"), [""])
sketch10.MapMode = "FlatFace"
sketch10.AttachmentOffset = App.Placement(Vector(0, 0, 1.6), App.Rotation())
add_polygon(sketch10, [(16.5, 51.8), (16.5, 49.5), (42.25, 49.5), (42.25, 51.8)])  # lines 0-3
add_polygon(sketch10, [(18.7, 50.05), (17.5, 50.05), (17.5, 51.25), (18.7, 51.25)])  # lines 4-7
add_polygon(sketch10, [(21.205556, 50.05), (20.005556, 50.05), (20.005556, 51.25), (21.205556, 51.25)])  # lines 8-11
add_polygon(sketch10, [(23.711111, 50.05), (22.511111, 50.05), (22.511111, 51.25), (23.711111, 51.25)])  # lines 12-15
add_polygon(sketch10, [(26.216667, 50.05), (25.016667, 50.05), (25.016667, 51.25), (26.216667, 51.25)])  # lines 16-19
add_polygon(sketch10, [(28.722222, 50.05), (27.522222, 50.05), (27.522222, 51.25), (28.722222, 51.25)])  # lines 20-23
add_polygon(sketch10, [(31.227778, 50.05), (30.027778, 50.05), (30.027778, 51.25), (31.227778, 51.25)])  # lines 24-27
add_polygon(sketch10, [(33.733333, 50.05), (32.533333, 50.05), (32.533333, 51.25), (33.733333, 51.25)])  # lines 28-31
add_polygon(sketch10, [(36.238889, 50.05), (35.038889, 50.05), (35.038889, 51.25), (36.238889, 51.25)])  # lines 32-35
add_polygon(sketch10, [(38.744444, 50.05), (37.544444, 50.05), (37.544444, 51.25), (38.744444, 51.25)])  # lines 36-39
add_polygon(sketch10, [(41.25, 50.05), (40.05, 50.05), (40.05, 51.25), (41.25, 51.25)])  # lines 40-43
sketch10.addConstraint(Sketcher.Constraint("Vertical", 0))
sketch10.addConstraint(Sketcher.Constraint("Horizontal", 1))
sketch10.addConstraint(Sketcher.Constraint("Vertical", 2))
sketch10.addConstraint(Sketcher.Constraint("Horizontal", 3))
sketch10.addConstraint(Sketcher.Constraint("Horizontal", 4))
sketch10.addConstraint(Sketcher.Constraint("Vertical", 5))
sketch10.addConstraint(Sketcher.Constraint("Horizontal", 6))
sketch10.addConstraint(Sketcher.Constraint("Vertical", 7))
sketch10.addConstraint(Sketcher.Constraint("Horizontal", 8))
sketch10.addConstraint(Sketcher.Constraint("Vertical", 9))
sketch10.addConstraint(Sketcher.Constraint("Horizontal", 10))
sketch10.addConstraint(Sketcher.Constraint("Vertical", 11))
sketch10.addConstraint(Sketcher.Constraint("Horizontal", 12))
sketch10.addConstraint(Sketcher.Constraint("Vertical", 13))
sketch10.addConstraint(Sketcher.Constraint("Horizontal", 14))
sketch10.addConstraint(Sketcher.Constraint("Vertical", 15))
sketch10.addConstraint(Sketcher.Constraint("Horizontal", 16))
sketch10.addConstraint(Sketcher.Constraint("Vertical", 17))
sketch10.addConstraint(Sketcher.Constraint("Horizontal", 18))
sketch10.addConstraint(Sketcher.Constraint("Vertical", 19))
sketch10.addConstraint(Sketcher.Constraint("Horizontal", 20))
sketch10.addConstraint(Sketcher.Constraint("Vertical", 21))
sketch10.addConstraint(Sketcher.Constraint("Horizontal", 22))
sketch10.addConstraint(Sketcher.Constraint("Vertical", 23))
sketch10.addConstraint(Sketcher.Constraint("Horizontal", 24))
sketch10.addConstraint(Sketcher.Constraint("Vertical", 25))
sketch10.addConstraint(Sketcher.Constraint("Horizontal", 26))
sketch10.addConstraint(Sketcher.Constraint("Vertical", 27))
sketch10.addConstraint(Sketcher.Constraint("Horizontal", 28))
sketch10.addConstraint(Sketcher.Constraint("Vertical", 29))
sketch10.addConstraint(Sketcher.Constraint("Horizontal", 30))
sketch10.addConstraint(Sketcher.Constraint("Vertical", 31))
sketch10.addConstraint(Sketcher.Constraint("Horizontal", 32))
sketch10.addConstraint(Sketcher.Constraint("Vertical", 33))
sketch10.addConstraint(Sketcher.Constraint("Horizontal", 34))
sketch10.addConstraint(Sketcher.Constraint("Vertical", 35))
sketch10.addConstraint(Sketcher.Constraint("Horizontal", 36))
sketch10.addConstraint(Sketcher.Constraint("Vertical", 37))
sketch10.addConstraint(Sketcher.Constraint("Horizontal", 38))
sketch10.addConstraint(Sketcher.Constraint("Vertical", 39))
sketch10.addConstraint(Sketcher.Constraint("Horizontal", 40))
sketch10.addConstraint(Sketcher.Constraint("Vertical", 41))
sketch10.addConstraint(Sketcher.Constraint("Horizontal", 42))
sketch10.addConstraint(Sketcher.Constraint("Vertical", 43))
sketch10.addConstraint(Sketcher.Constraint("Horizontal", 7, 2, 8, 2))
sketch10.addConstraint(Sketcher.Constraint("Horizontal", 6, 2, 9, 2))
sketch10.addConstraint(Sketcher.Constraint("Horizontal", 11, 2, 12, 2))
sketch10.addConstraint(Sketcher.Constraint("Horizontal", 10, 2, 13, 2))
sketch10.addConstraint(Sketcher.Constraint("Horizontal", 15, 2, 16, 2))
sketch10.addConstraint(Sketcher.Constraint("Horizontal", 14, 2, 17, 2))
sketch10.addConstraint(Sketcher.Constraint("Horizontal", 19, 2, 20, 2))
sketch10.addConstraint(Sketcher.Constraint("Horizontal", 18, 2, 21, 2))
sketch10.addConstraint(Sketcher.Constraint("Horizontal", 23, 2, 24, 2))
sketch10.addConstraint(Sketcher.Constraint("Horizontal", 22, 2, 25, 2))
sketch10.addConstraint(Sketcher.Constraint("Horizontal", 27, 2, 28, 2))
sketch10.addConstraint(Sketcher.Constraint("Horizontal", 26, 2, 29, 2))
sketch10.addConstraint(Sketcher.Constraint("Horizontal", 31, 2, 32, 2))
sketch10.addConstraint(Sketcher.Constraint("Horizontal", 30, 2, 33, 2))
sketch10.addConstraint(Sketcher.Constraint("Horizontal", 35, 2, 36, 2))
sketch10.addConstraint(Sketcher.Constraint("Horizontal", 34, 2, 37, 2))
sketch10.addConstraint(Sketcher.Constraint("Horizontal", 39, 2, 40, 2))
sketch10.addConstraint(Sketcher.Constraint("Horizontal", 38, 2, 41, 2))
sketch10.addConstraint(Sketcher.Constraint("Equal", 6, 8))
sketch10.addConstraint(Sketcher.Constraint("Equal", 10, 12))
sketch10.addConstraint(Sketcher.Constraint("Equal", 14, 16))
sketch10.addConstraint(Sketcher.Constraint("Equal", 18, 20))
sketch10.addConstraint(Sketcher.Constraint("Equal", 22, 24))
sketch10.addConstraint(Sketcher.Constraint("Equal", 26, 28))
sketch10.addConstraint(Sketcher.Constraint("Equal", 30, 32))
sketch10.addConstraint(Sketcher.Constraint("Equal", 34, 36))
sketch10.addConstraint(Sketcher.Constraint("Equal", 38, 40))
sketch10.addConstraint(Sketcher.Constraint("Equal", 42, 5))
sketch10.addConstraint(Sketcher.Constraint("DistanceX", 4, 2, 4, 1, Q("1.2 mm")))
sketch10.addConstraint(Sketcher.Constraint("DistanceY", 0, 2, 0, 1, Q("2.3 mm")))
sketch10.addConstraint(Sketcher.Constraint("DistanceX", 0, 2, 4, 2, Q("1 mm")))
sketch10.addConstraint(Sketcher.Constraint("DistanceX", 42, 2, 2, 2, Q("1 mm")))
sketch10.addConstraint(Sketcher.Constraint("DistanceX", 1, 1, 1, 2, Q("25.75 mm")))
sketch10.addConstraint(Sketcher.Constraint("DistanceX", -1, 1, 0, 2, Q("16.5 mm")))
sketch10.addConstraint(Sketcher.Constraint("DistanceY", -1, 1, 0, 2, Q("49.5 mm")))
sketch10.addConstraint(Sketcher.Constraint("DistanceY", -1, 1, 4, 2, Q("50.05 mm")))
sketch10.addConstraint(Sketcher.Constraint("DistanceX", -1, 1, 12, 2, Q("22.511111 mm")))
sketch10.addConstraint(Sketcher.Constraint("DistanceX", -1, 1, 32, 2, Q("35.038889 mm")))
sketch10.addConstraint(Sketcher.Constraint("DistanceX", 11, 2, 16, 2, Q("3.811111 mm")))
sketch10.addConstraint(Sketcher.Constraint("DistanceX", 15, 2, 20, 2, Q("3.811111 mm")))
sketch10.addConstraint(Sketcher.Constraint("DistanceX", 19, 2, 24, 2, Q("3.811111 mm")))
sketch10.addConstraint(Sketcher.Constraint("DistanceX", 23, 2, 28, 2, Q("3.811111 mm")))
sketch10.addConstraint(Sketcher.Constraint("DistanceX", 27, 2, 32, 2, Q("3.811111 mm")))
sketch10.addConstraint(Sketcher.Constraint("DistanceX", 31, 2, 36, 2, Q("3.811111 mm")))
pad8 = doc.addObject("PartDesign::Pad", "Pad007")
body5.addObject(pad8)
pad8.Profile = sketch10
pad8.Length = 14

doc.recompute()
